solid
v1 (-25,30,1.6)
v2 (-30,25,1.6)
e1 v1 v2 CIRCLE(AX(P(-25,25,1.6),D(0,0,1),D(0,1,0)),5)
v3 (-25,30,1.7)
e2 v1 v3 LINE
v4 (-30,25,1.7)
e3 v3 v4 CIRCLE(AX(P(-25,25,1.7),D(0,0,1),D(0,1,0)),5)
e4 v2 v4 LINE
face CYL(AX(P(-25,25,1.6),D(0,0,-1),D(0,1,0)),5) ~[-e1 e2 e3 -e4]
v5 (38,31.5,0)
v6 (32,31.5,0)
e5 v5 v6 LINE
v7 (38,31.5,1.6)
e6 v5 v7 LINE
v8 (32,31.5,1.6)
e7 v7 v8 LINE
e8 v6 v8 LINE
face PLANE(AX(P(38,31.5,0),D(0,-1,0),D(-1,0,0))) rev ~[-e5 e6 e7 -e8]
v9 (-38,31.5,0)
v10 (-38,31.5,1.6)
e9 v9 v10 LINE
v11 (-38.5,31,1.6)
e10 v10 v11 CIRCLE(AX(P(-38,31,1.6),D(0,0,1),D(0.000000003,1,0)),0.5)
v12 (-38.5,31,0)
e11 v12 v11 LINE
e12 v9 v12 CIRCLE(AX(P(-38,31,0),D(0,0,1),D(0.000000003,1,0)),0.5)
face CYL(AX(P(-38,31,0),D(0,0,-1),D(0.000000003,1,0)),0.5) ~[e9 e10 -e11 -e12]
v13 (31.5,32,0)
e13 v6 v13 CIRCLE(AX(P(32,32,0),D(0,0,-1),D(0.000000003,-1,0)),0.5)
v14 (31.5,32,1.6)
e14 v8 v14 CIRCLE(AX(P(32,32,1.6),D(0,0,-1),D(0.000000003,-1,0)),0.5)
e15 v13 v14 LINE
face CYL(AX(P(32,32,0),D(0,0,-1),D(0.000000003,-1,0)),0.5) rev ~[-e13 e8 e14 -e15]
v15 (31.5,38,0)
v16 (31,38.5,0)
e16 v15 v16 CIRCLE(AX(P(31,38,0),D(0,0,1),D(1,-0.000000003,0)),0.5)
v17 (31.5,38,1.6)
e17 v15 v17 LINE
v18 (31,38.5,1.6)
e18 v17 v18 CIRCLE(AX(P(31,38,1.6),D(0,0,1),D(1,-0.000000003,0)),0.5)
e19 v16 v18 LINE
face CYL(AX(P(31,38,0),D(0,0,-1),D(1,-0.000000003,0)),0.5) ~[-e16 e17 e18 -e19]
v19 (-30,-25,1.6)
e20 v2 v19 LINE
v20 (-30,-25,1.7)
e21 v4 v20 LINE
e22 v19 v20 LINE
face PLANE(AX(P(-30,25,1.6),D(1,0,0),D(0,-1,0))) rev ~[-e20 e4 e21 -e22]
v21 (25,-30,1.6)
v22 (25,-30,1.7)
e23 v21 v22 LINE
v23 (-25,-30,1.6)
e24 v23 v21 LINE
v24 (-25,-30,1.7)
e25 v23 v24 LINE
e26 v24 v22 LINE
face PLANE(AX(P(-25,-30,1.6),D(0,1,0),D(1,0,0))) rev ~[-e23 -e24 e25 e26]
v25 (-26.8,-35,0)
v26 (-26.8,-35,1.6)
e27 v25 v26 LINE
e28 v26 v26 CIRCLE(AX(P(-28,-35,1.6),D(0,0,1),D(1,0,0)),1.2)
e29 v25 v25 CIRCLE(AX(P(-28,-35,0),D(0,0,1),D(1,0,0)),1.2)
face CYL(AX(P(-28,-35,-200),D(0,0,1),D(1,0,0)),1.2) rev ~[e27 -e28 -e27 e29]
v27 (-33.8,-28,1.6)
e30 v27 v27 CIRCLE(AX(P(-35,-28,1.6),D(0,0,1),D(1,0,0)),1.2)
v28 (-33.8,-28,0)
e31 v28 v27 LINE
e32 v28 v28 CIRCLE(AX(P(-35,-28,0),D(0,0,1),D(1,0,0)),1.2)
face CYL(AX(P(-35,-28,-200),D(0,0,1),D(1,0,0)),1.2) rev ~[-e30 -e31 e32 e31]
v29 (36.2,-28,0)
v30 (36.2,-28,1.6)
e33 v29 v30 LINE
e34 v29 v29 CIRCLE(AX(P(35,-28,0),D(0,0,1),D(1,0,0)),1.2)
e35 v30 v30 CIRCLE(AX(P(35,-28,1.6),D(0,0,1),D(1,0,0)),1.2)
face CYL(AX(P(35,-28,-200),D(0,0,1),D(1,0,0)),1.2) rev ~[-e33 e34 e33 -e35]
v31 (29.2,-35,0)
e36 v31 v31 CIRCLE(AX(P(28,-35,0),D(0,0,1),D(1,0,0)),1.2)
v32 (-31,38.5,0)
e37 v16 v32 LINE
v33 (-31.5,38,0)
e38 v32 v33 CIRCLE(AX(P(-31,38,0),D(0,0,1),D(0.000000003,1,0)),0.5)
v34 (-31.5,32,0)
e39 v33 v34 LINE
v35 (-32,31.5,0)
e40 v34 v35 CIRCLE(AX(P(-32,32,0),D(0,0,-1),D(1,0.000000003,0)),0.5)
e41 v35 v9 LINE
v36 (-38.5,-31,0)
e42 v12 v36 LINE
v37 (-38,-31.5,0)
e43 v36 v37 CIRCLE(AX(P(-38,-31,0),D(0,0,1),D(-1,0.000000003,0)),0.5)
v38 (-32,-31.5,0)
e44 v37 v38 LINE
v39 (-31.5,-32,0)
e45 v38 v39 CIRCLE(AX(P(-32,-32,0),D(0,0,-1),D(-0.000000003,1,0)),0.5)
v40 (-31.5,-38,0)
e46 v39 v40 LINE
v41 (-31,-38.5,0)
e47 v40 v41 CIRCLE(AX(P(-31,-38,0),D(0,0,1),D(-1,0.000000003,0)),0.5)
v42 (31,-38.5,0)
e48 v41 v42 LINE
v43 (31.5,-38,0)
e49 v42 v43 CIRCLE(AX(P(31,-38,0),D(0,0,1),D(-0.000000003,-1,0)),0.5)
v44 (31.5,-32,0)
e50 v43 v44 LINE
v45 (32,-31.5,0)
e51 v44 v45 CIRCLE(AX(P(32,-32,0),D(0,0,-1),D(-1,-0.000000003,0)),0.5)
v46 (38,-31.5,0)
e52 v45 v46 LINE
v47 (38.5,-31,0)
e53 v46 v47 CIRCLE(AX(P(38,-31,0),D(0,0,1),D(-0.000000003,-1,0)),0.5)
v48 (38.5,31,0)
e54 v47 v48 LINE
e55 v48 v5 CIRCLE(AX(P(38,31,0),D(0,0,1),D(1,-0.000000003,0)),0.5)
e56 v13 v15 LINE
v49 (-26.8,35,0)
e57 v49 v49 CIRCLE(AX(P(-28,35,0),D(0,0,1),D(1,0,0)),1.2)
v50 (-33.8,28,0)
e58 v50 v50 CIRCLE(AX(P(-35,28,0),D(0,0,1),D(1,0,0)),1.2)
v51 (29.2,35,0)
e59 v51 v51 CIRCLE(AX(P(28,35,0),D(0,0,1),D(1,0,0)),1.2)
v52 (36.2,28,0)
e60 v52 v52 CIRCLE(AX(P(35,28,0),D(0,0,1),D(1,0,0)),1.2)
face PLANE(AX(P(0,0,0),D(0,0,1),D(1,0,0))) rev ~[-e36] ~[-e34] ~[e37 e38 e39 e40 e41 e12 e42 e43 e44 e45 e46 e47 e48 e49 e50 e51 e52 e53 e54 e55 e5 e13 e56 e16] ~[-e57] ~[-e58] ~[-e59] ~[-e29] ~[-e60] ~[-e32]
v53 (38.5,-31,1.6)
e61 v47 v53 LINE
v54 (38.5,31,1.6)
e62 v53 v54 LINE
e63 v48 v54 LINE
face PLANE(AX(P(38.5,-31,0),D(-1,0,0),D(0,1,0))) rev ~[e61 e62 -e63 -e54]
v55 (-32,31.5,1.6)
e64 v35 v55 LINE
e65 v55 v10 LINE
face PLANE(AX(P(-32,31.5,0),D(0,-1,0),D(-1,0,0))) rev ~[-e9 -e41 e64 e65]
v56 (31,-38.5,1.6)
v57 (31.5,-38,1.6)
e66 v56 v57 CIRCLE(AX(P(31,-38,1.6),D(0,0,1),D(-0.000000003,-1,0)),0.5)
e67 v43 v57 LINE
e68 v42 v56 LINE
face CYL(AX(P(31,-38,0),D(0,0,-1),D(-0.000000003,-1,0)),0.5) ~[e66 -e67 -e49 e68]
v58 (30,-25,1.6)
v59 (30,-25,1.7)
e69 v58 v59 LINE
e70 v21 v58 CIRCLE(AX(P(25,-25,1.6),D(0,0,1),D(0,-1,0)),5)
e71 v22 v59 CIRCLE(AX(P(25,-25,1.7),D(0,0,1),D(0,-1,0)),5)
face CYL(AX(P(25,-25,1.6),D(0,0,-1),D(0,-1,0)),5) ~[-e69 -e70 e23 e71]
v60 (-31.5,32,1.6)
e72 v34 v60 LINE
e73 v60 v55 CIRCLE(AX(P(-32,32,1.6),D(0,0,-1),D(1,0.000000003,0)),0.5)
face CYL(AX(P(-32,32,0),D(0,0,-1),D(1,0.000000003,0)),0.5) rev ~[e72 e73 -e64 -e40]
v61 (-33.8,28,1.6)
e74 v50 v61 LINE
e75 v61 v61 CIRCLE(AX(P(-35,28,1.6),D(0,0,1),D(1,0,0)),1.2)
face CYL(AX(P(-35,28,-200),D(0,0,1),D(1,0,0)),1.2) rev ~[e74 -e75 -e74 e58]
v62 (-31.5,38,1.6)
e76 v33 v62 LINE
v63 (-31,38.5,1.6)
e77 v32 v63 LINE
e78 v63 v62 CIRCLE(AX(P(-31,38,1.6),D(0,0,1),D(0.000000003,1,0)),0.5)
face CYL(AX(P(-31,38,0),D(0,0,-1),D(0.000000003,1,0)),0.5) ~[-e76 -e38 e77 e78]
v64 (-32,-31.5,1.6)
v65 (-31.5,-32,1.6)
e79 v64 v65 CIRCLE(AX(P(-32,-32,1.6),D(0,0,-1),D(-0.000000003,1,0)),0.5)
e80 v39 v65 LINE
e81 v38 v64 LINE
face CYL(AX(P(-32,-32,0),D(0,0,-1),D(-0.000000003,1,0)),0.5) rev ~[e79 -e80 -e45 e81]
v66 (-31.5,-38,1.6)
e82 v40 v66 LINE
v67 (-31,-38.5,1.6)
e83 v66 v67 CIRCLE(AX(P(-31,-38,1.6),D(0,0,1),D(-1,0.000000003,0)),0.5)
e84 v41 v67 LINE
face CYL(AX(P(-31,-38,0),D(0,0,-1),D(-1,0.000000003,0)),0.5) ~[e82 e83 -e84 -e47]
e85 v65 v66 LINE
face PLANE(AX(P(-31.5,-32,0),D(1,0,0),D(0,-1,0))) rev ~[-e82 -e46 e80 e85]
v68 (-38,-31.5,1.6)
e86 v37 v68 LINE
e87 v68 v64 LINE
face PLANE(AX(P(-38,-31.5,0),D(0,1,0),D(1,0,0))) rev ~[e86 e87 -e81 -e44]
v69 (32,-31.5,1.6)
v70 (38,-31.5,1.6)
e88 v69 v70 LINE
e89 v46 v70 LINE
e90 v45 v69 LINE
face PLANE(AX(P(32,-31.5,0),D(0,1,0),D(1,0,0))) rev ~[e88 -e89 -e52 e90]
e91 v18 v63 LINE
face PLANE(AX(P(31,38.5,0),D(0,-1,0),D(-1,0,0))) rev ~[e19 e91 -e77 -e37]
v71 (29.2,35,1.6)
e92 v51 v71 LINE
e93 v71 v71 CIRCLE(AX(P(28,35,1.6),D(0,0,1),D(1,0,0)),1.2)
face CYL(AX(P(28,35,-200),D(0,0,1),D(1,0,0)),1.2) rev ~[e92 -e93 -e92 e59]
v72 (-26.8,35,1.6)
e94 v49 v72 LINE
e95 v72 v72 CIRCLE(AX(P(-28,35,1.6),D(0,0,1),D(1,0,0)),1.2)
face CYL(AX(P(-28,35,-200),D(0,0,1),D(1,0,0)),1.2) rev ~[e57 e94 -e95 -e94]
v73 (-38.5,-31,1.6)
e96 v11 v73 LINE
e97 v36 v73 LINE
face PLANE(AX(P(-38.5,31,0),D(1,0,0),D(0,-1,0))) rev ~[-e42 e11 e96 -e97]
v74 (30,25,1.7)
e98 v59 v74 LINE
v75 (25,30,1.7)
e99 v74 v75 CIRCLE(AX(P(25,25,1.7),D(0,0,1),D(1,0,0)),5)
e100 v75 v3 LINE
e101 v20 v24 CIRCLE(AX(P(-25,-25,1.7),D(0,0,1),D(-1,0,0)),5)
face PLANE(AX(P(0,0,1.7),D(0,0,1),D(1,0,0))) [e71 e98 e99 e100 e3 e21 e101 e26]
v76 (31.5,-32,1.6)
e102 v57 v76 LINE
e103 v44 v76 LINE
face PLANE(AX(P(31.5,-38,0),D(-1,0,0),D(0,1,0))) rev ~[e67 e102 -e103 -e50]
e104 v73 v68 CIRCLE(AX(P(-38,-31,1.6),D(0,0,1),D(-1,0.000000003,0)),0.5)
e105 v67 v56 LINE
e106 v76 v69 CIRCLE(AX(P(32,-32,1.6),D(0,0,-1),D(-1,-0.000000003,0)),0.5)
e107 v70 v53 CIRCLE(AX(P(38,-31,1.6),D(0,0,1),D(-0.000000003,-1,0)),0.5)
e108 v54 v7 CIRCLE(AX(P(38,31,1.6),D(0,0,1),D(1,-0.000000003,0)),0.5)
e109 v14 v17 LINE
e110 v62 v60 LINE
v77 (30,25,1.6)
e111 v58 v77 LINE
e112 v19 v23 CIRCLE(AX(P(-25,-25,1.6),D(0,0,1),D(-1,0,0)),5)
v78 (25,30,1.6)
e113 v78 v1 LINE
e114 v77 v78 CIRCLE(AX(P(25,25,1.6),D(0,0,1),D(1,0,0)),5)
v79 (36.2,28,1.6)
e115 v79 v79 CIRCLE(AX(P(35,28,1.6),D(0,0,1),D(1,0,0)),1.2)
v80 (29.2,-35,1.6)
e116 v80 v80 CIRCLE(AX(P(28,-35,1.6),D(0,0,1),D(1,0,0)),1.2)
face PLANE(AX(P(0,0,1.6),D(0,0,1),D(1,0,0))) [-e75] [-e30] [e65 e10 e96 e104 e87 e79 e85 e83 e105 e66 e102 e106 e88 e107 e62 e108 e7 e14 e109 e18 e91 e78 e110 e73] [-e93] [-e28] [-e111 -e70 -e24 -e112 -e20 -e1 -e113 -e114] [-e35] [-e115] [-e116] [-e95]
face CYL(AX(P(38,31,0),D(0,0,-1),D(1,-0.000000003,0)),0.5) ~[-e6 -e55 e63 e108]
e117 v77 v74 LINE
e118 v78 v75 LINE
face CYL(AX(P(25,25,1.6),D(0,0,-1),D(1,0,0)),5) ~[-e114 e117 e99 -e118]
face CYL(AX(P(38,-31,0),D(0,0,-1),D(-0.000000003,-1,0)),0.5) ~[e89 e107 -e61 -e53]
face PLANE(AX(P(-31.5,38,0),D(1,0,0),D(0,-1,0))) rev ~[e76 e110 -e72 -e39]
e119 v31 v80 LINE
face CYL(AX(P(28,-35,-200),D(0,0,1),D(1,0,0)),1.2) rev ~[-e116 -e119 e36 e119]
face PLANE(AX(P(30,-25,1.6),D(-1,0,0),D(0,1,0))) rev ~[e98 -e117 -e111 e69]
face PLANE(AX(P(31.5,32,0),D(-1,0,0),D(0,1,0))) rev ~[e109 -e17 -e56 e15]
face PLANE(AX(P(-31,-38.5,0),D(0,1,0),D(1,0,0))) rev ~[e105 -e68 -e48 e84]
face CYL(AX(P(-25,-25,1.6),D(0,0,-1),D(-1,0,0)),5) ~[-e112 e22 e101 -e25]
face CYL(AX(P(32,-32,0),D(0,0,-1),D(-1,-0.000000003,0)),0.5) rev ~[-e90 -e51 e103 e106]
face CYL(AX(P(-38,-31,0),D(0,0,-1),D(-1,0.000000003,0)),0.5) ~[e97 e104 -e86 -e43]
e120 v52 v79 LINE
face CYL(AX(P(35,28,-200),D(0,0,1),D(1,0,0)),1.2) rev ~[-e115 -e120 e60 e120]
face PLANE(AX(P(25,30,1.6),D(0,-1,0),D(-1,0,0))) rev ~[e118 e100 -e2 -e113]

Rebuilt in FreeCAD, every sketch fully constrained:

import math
import FreeCAD as App
import Part
import Sketcher
from FreeCAD import Vector
Q = App.Units.Quantity

doc = App.newDocument("Part")
body = doc.addObject("PartDesign::Body", "Body")

sketch1 = doc.addObject("Sketcher::SketchObject", "Sketch")
body.addObject(sketch1)
sketch1.AttachmentSupport = (doc.XY_Plane, [""])
sketch1.MapMode = "FlatFace"
sketch1.addGeometry([
    Part.LineSegment(Vector(-31.5, 38, 0), Vector(-31.5, 32, 0)),
    Part.ArcOfCircle(Part.Circle(Vector(-32, 32, 0), Vector(0, 0, 1), 0.5), math.radians(-90), math.radians(0)),
    Part.LineSegment(Vector(-32, 31.5, 0), Vector(-38, 31.5, 0)),
    Part.ArcOfCircle(Part.Circle(Vector(-38, 31, 0), Vector(0, 0, 1), 0.5), math.radians(90), math.radians(180)),
    Part.LineSegment(Vector(-38.5, 31, 0), Vector(-38.5, -31, 0)),
    Part.ArcOfCircle(Part.Circle(Vector(-38, -31, 0), Vector(0, 0, 1), 0.5), math.radians(180), math.radians(270)),
    Part.LineSegment(Vector(-38, -31.5, 0), Vector(-32, -31.5, 0)),
    Part.ArcOfCircle(Part.Circle(Vector(-32, -32, 0), Vector(0, 0, 1), 0.5), math.radians(0), math.radians(90)),
    Part.LineSegment(Vector(-31.5, -32, 0), Vector(-31.5, -38, 0)),
    Part.ArcOfCircle(Part.Circle(Vector(-31, -38, 0), Vector(0, 0, 1), 0.5), math.radians(180), math.radians(270)),
    Part.LineSegment(Vector(-31, -38.5, 0), Vector(31, -38.5, 0)),
    Part.ArcOfCircle(Part.Circle(Vector(31, -38, 0), Vector(0, 0, 1), 0.5), math.radians(-90), math.radians(0)),
    Part.LineSegment(Vector(31.5, -38, 0), Vector(31.5, -32, 0)),
    Part.ArcOfCircle(Part.Circle(Vector(32, -32, 0), Vector(0, 0, 1), 0.5), math.radians(90), math.radians(180)),
    Part.LineSegment(Vector(32, -31.5, 0), Vector(38, -31.5, 0)),
    Part.ArcOfCircle(Part.Circle(Vector(38, -31, 0), Vector(0, 0, 1), 0.5), math.radians(-90), math.radians(0)),
    Part.LineSegment(Vector(38.5, -31, 0), Vector(38.5, 31, 0)),
    Part.ArcOfCircle(Part.Circle(Vector(38, 31, 0), Vector(0, 0, 1), 0.5), math.radians(0), math.radians(90)),
    Part.LineSegment(Vector(38, 31.5, 0), Vector(32, 31.5, 0)),
    Part.ArcOfCircle(Part.Circle(Vector(32, 32, 0), Vector(0, 0, 1), 0.5), math.radians(180), math.radians(270)),
    Part.LineSegment(Vector(31.5, 32, 0), Vector(31.5, 38, 0)),
    Part.ArcOfCircle(Part.Circle(Vector(31, 38, 0), Vector(0, 0, 1), 0.5), math.radians(0), math.radians(90)),
    Part.LineSegment(Vector(31, 38.5, 0), Vector(-31, 38.5, 0)),
    Part.ArcOfCircle(Part.Circle(Vector(-31, 38, 0), Vector(0, 0, 1), 0.5), math.radians(90), math.radians(180)),
], False)
sketch1.addConstraint([
    Sketcher.Constraint("Tangent", 0, 2, 1, 2),
    Sketcher.Constraint("Tangent", 1, 1, 2, 1),
    Sketcher.Constraint("Tangent", 2, 2, 3, 1),
    Sketcher.Constraint("Tangent", 3, 2, 4, 1),
    Sketcher.Constraint("Tangent", 4, 2, 5, 1),
    Sketcher.Constraint("Tangent", 5, 2, 6, 1),
    Sketcher.Constraint("Tangent", 6, 2, 7, 2),
    Sketcher.Constraint("Tangent", 7, 1, 8, 1),
    Sketcher.Constraint("Tangent", 8, 2, 9, 1),
    Sketcher.Constraint("Tangent", 9, 2, 10, 1),
    Sketcher.Constraint("Tangent", 10, 2, 11, 1),
    Sketcher.Constraint("Tangent", 11, 2, 12, 1),
    Sketcher.Constraint("Tangent", 12, 2, 13, 2),
    Sketcher.Constraint("Tangent", 13, 1, 14, 1),
    Sketcher.Constraint("Tangent", 14, 2, 15, 1),
    Sketcher.Constraint("Tangent", 15, 2, 16, 1),
    Sketcher.Constraint("Tangent", 16, 2, 17, 1),
    Sketcher.Constraint("Tangent", 17, 2, 18, 1),
    Sketcher.Constraint("Tangent", 18, 2, 19, 2),
    Sketcher.Constraint("Tangent", 19, 1, 20, 1),
    Sketcher.Constraint("Tangent", 20, 2, 21, 1),
    Sketcher.Constraint("Tangent", 21, 2, 22, 1),
    Sketcher.Constraint("Tangent", 22, 2, 23, 1),
    Sketcher.Constraint("Tangent", 23, 2, 0, 1),
    Sketcher.Constraint("Vertical", 0),
    Sketcher.Constraint("Horizontal", 2),
    Sketcher.Constraint("Vertical", 4),
    Sketcher.Constraint("Horizontal", 6),
    Sketcher.Constraint("Vertical", 8),
    Sketcher.Constraint("Horizontal", 10),
    Sketcher.Constraint("Vertical", 12),
    Sketcher.Constraint("Horizontal", 14),
    Sketcher.Constraint("Vertical", 16),
    Sketcher.Constraint("Horizontal", 18),
    Sketcher.Constraint("Vertical", 20),
    Sketcher.Constraint("Horizontal", 22),
    Sketcher.Constraint("Equal", 1, 3),
    Sketcher.Constraint("Equal", 3, 5),
    Sketcher.Constraint("Equal", 5, 7),
    Sketcher.Constraint("Equal", 7, 9),
    Sketcher.Constraint("Equal", 9, 11),
    Sketcher.Constraint("Equal", 11, 13),
    Sketcher.Constraint("Equal", 13, 15),
    Sketcher.Constraint("Equal", 15, 17),
    Sketcher.Constraint("Equal", 17, 19),
    Sketcher.Constraint("Equal", 19, 21),
    Sketcher.Constraint("Equal", 21, 23),
    Sketcher.Constraint("Symmetric", 1, 3, 13, 3, -1, 1),
    Sketcher.Constraint("Symmetric", 5, 3, 17, 3, -1, 1),
    Sketcher.Constraint("Symmetric", 9, 3, 21, 3, -1, 1),
    Sketcher.Constraint("Symmetric", 7, 3, 13, 3, -2),
    Sketcher.Constraint("Equal", 18, 0),
    Sketcher.Constraint("Equal", 22, 4),
    Sketcher.Constraint("Radius", 1, Q("0.5 mm")),
    Sketcher.Constraint("DistanceX", 2, 2, 2, 1, Q("6 mm")),
    Sketcher.Constraint("DistanceX", 10, 1, 10, 2, Q("62 mm")),
])
pad1 = doc.addObject("PartDesign::Pad", "Pad")
body.addObject(pad1)
pad1.Profile = sketch1
pad1.Length = 1.6

sketch2 = doc.addObject("Sketcher::SketchObject", "Sketch001")
body.addObject(sketch2)
sketch2.AttachmentSupport = (doc.XY_Plane, [""])
sketch2.MapMode = "FlatFace"
sketch2.AttachmentOffset = App.Placement(Vector(0, 0, 1.6), App.Rotation())
sketch2.addGeometry([
    Part.LineSegment(Vector(-25, -30, 0), Vector(25, -30, 0)),
    Part.ArcOfCircle(Part.Circle(Vector(25, -25, 0), Vector(0, 0, 1), 5), math.radians(-90), math.radians(0)),
    Part.LineSegment(Vector(30, -25, 0), Vector(30, 25, 0)),
    Part.ArcOfCircle(Part.Circle(Vector(25, 25, 0), Vector(0, 0, 1), 5), math.radians(0), math.radians(90)),
    Part.LineSegment(Vector(25, 30, 0), Vector(-25, 30, 0)),
    Part.ArcOfCircle(Part.Circle(Vector(-25, 25, 0), Vector(0, 0, 1), 5), math.radians(90), math.radians(180)),
    Part.LineSegment(Vector(-30, 25, 0), Vector(-30, -25, 0)),
    Part.ArcOfCircle(Part.Circle(Vector(-25, -25, 0), Vector(0, 0, 1), 5), math.radians(180), math.radians(270)),
], False)
sketch2.addConstraint([
    Sketcher.Constraint("Tangent", 0, 2, 1, 1),
    Sketcher.Constraint("Tangent", 1, 2, 2, 1),
    Sketcher.Constraint("Tangent", 2, 2, 3, 1),
    Sketcher.Constraint("Tangent", 3, 2, 4, 1),
    Sketcher.Constraint("Tangent", 4, 2, 5, 1),
    Sketcher.Constraint("Tangent", 5, 2, 6, 1),
    Sketcher.Constraint("Tangent", 6, 2, 7, 1),
    Sketcher.Constraint("Tangent", 7, 2, 0, 1),
    Sketcher.Constraint("Horizontal", 0),
    Sketcher.Constraint("Vertical", 2),
    Sketcher.Constraint("Horizontal", 4),
    Sketcher.Constraint("Vertical", 6),
    Sketcher.Constraint("Equal", 1, 3),
    Sketcher.Constraint("Equal", 3, 5),
    Sketcher.Constraint("Equal", 5, 7),
    Sketcher.Constraint("Symmetric", 1, 3, 5, 3, -1, 1),
    Sketcher.Constraint("Equal", 4, 2),
    Sketcher.Constraint("Radius", 1, Q("5 mm")),
    Sketcher.Constraint("DistanceX", 0, 1, 0, 2, Q("50 mm")),
])
pad2 = doc.addObject("PartDesign::Pad", "Pad001")
body.addObject(pad2)
pad2.Profile = sketch2
pad2.Length = 0.1

sketch3 = doc.addObject("Sketcher::SketchObject", "Sketch002")
body.addObject(sketch3)
sketch3.AttachmentSupport = (doc.XY_Plane, [""])
sketch3.MapMode = "FlatFace"
sketch3.addGeometry([
    Part.Circle(Vector(28, 35, 0), Vector(0, 0, 1), 1.2),
    Part.Circle(Vector(-28, 35, 0), Vector(0, 0, 1), 1.2),
    Part.Circle(Vector(28, -35, 0), Vector(0, 0, 1), 1.2),
    Part.Circle(Vector(-28, -35, 0), Vector(0, 0, 1), 1.2),
    Part.Circle(Vector(-35, 28, 0), Vector(0, 0, 1), 1.2),
    Part.Circle(Vector(-35, -28, 0), Vector(0, 0, 1), 1.2),
    Part.Circle(Vector(35, -28, 0), Vector(0, 0, 1), 1.2),
    Part.Circle(Vector(35, 28, 0), Vector(0, 0, 1), 1.2),
], False)
sketch3.addConstraint([
    Sketcher.Constraint("Equal", 0, 1),
    Sketcher.Constraint("Equal", 1, 2),
    Sketcher.Constraint("Equal", 2, 3),
    Sketcher.Constraint("Equal", 3, 4),
    Sketcher.Constraint("Equal", 4, 5),
    Sketcher.Constraint("Equal", 5, 6),
    Sketcher.Constraint("Equal", 6, 7),
    Sketcher.Constraint("Symmetric", 1, 3, 2, 3, -1, 1),
    Sketcher.Constraint("Symmetric", 0, 3, 3, 3, -1, 1),
    Sketcher.Constraint("Symmetric", 4, 3, 6, 3, -1, 1),
    Sketcher.Constraint("Symmetric", 5, 3, 7, 3, -1, 1),
    Sketcher.Constraint("Symmetric", 0, 3, 1, 3, -2),
    Sketcher.Constraint("Symmetric", 5, 3, 6, 3, -2),
    Sketcher.Constraint("Diameter", 0, Q("2.4 mm")),
    Sketcher.Constraint("DistanceX", -1, 1, 0, 3, Q("28 mm")),
    Sketcher.Constraint("DistanceY", -1, 1, 0, 3, Q("35 mm")),
    Sketcher.Constraint("DistanceX", 4, 3, -1, 1, Q("35 mm")),
    Sketcher.Constraint("DistanceY", -1, 1, 4, 3, Q("28 mm")),
])
doc.recompute()
hole = doc.addObject("PartDesign::Hole", "Hole")
body.addObject(hole)
hole.Profile = sketch3
hole.ThreadType = "None"
hole.Diameter = 2.4
hole.DepthType = "Dimension"
hole.Depth = 200
hole.DrillPoint = "Angled"
hole.DrillPointAngle = 118
hole.Reversed = True

doc.recompute()
